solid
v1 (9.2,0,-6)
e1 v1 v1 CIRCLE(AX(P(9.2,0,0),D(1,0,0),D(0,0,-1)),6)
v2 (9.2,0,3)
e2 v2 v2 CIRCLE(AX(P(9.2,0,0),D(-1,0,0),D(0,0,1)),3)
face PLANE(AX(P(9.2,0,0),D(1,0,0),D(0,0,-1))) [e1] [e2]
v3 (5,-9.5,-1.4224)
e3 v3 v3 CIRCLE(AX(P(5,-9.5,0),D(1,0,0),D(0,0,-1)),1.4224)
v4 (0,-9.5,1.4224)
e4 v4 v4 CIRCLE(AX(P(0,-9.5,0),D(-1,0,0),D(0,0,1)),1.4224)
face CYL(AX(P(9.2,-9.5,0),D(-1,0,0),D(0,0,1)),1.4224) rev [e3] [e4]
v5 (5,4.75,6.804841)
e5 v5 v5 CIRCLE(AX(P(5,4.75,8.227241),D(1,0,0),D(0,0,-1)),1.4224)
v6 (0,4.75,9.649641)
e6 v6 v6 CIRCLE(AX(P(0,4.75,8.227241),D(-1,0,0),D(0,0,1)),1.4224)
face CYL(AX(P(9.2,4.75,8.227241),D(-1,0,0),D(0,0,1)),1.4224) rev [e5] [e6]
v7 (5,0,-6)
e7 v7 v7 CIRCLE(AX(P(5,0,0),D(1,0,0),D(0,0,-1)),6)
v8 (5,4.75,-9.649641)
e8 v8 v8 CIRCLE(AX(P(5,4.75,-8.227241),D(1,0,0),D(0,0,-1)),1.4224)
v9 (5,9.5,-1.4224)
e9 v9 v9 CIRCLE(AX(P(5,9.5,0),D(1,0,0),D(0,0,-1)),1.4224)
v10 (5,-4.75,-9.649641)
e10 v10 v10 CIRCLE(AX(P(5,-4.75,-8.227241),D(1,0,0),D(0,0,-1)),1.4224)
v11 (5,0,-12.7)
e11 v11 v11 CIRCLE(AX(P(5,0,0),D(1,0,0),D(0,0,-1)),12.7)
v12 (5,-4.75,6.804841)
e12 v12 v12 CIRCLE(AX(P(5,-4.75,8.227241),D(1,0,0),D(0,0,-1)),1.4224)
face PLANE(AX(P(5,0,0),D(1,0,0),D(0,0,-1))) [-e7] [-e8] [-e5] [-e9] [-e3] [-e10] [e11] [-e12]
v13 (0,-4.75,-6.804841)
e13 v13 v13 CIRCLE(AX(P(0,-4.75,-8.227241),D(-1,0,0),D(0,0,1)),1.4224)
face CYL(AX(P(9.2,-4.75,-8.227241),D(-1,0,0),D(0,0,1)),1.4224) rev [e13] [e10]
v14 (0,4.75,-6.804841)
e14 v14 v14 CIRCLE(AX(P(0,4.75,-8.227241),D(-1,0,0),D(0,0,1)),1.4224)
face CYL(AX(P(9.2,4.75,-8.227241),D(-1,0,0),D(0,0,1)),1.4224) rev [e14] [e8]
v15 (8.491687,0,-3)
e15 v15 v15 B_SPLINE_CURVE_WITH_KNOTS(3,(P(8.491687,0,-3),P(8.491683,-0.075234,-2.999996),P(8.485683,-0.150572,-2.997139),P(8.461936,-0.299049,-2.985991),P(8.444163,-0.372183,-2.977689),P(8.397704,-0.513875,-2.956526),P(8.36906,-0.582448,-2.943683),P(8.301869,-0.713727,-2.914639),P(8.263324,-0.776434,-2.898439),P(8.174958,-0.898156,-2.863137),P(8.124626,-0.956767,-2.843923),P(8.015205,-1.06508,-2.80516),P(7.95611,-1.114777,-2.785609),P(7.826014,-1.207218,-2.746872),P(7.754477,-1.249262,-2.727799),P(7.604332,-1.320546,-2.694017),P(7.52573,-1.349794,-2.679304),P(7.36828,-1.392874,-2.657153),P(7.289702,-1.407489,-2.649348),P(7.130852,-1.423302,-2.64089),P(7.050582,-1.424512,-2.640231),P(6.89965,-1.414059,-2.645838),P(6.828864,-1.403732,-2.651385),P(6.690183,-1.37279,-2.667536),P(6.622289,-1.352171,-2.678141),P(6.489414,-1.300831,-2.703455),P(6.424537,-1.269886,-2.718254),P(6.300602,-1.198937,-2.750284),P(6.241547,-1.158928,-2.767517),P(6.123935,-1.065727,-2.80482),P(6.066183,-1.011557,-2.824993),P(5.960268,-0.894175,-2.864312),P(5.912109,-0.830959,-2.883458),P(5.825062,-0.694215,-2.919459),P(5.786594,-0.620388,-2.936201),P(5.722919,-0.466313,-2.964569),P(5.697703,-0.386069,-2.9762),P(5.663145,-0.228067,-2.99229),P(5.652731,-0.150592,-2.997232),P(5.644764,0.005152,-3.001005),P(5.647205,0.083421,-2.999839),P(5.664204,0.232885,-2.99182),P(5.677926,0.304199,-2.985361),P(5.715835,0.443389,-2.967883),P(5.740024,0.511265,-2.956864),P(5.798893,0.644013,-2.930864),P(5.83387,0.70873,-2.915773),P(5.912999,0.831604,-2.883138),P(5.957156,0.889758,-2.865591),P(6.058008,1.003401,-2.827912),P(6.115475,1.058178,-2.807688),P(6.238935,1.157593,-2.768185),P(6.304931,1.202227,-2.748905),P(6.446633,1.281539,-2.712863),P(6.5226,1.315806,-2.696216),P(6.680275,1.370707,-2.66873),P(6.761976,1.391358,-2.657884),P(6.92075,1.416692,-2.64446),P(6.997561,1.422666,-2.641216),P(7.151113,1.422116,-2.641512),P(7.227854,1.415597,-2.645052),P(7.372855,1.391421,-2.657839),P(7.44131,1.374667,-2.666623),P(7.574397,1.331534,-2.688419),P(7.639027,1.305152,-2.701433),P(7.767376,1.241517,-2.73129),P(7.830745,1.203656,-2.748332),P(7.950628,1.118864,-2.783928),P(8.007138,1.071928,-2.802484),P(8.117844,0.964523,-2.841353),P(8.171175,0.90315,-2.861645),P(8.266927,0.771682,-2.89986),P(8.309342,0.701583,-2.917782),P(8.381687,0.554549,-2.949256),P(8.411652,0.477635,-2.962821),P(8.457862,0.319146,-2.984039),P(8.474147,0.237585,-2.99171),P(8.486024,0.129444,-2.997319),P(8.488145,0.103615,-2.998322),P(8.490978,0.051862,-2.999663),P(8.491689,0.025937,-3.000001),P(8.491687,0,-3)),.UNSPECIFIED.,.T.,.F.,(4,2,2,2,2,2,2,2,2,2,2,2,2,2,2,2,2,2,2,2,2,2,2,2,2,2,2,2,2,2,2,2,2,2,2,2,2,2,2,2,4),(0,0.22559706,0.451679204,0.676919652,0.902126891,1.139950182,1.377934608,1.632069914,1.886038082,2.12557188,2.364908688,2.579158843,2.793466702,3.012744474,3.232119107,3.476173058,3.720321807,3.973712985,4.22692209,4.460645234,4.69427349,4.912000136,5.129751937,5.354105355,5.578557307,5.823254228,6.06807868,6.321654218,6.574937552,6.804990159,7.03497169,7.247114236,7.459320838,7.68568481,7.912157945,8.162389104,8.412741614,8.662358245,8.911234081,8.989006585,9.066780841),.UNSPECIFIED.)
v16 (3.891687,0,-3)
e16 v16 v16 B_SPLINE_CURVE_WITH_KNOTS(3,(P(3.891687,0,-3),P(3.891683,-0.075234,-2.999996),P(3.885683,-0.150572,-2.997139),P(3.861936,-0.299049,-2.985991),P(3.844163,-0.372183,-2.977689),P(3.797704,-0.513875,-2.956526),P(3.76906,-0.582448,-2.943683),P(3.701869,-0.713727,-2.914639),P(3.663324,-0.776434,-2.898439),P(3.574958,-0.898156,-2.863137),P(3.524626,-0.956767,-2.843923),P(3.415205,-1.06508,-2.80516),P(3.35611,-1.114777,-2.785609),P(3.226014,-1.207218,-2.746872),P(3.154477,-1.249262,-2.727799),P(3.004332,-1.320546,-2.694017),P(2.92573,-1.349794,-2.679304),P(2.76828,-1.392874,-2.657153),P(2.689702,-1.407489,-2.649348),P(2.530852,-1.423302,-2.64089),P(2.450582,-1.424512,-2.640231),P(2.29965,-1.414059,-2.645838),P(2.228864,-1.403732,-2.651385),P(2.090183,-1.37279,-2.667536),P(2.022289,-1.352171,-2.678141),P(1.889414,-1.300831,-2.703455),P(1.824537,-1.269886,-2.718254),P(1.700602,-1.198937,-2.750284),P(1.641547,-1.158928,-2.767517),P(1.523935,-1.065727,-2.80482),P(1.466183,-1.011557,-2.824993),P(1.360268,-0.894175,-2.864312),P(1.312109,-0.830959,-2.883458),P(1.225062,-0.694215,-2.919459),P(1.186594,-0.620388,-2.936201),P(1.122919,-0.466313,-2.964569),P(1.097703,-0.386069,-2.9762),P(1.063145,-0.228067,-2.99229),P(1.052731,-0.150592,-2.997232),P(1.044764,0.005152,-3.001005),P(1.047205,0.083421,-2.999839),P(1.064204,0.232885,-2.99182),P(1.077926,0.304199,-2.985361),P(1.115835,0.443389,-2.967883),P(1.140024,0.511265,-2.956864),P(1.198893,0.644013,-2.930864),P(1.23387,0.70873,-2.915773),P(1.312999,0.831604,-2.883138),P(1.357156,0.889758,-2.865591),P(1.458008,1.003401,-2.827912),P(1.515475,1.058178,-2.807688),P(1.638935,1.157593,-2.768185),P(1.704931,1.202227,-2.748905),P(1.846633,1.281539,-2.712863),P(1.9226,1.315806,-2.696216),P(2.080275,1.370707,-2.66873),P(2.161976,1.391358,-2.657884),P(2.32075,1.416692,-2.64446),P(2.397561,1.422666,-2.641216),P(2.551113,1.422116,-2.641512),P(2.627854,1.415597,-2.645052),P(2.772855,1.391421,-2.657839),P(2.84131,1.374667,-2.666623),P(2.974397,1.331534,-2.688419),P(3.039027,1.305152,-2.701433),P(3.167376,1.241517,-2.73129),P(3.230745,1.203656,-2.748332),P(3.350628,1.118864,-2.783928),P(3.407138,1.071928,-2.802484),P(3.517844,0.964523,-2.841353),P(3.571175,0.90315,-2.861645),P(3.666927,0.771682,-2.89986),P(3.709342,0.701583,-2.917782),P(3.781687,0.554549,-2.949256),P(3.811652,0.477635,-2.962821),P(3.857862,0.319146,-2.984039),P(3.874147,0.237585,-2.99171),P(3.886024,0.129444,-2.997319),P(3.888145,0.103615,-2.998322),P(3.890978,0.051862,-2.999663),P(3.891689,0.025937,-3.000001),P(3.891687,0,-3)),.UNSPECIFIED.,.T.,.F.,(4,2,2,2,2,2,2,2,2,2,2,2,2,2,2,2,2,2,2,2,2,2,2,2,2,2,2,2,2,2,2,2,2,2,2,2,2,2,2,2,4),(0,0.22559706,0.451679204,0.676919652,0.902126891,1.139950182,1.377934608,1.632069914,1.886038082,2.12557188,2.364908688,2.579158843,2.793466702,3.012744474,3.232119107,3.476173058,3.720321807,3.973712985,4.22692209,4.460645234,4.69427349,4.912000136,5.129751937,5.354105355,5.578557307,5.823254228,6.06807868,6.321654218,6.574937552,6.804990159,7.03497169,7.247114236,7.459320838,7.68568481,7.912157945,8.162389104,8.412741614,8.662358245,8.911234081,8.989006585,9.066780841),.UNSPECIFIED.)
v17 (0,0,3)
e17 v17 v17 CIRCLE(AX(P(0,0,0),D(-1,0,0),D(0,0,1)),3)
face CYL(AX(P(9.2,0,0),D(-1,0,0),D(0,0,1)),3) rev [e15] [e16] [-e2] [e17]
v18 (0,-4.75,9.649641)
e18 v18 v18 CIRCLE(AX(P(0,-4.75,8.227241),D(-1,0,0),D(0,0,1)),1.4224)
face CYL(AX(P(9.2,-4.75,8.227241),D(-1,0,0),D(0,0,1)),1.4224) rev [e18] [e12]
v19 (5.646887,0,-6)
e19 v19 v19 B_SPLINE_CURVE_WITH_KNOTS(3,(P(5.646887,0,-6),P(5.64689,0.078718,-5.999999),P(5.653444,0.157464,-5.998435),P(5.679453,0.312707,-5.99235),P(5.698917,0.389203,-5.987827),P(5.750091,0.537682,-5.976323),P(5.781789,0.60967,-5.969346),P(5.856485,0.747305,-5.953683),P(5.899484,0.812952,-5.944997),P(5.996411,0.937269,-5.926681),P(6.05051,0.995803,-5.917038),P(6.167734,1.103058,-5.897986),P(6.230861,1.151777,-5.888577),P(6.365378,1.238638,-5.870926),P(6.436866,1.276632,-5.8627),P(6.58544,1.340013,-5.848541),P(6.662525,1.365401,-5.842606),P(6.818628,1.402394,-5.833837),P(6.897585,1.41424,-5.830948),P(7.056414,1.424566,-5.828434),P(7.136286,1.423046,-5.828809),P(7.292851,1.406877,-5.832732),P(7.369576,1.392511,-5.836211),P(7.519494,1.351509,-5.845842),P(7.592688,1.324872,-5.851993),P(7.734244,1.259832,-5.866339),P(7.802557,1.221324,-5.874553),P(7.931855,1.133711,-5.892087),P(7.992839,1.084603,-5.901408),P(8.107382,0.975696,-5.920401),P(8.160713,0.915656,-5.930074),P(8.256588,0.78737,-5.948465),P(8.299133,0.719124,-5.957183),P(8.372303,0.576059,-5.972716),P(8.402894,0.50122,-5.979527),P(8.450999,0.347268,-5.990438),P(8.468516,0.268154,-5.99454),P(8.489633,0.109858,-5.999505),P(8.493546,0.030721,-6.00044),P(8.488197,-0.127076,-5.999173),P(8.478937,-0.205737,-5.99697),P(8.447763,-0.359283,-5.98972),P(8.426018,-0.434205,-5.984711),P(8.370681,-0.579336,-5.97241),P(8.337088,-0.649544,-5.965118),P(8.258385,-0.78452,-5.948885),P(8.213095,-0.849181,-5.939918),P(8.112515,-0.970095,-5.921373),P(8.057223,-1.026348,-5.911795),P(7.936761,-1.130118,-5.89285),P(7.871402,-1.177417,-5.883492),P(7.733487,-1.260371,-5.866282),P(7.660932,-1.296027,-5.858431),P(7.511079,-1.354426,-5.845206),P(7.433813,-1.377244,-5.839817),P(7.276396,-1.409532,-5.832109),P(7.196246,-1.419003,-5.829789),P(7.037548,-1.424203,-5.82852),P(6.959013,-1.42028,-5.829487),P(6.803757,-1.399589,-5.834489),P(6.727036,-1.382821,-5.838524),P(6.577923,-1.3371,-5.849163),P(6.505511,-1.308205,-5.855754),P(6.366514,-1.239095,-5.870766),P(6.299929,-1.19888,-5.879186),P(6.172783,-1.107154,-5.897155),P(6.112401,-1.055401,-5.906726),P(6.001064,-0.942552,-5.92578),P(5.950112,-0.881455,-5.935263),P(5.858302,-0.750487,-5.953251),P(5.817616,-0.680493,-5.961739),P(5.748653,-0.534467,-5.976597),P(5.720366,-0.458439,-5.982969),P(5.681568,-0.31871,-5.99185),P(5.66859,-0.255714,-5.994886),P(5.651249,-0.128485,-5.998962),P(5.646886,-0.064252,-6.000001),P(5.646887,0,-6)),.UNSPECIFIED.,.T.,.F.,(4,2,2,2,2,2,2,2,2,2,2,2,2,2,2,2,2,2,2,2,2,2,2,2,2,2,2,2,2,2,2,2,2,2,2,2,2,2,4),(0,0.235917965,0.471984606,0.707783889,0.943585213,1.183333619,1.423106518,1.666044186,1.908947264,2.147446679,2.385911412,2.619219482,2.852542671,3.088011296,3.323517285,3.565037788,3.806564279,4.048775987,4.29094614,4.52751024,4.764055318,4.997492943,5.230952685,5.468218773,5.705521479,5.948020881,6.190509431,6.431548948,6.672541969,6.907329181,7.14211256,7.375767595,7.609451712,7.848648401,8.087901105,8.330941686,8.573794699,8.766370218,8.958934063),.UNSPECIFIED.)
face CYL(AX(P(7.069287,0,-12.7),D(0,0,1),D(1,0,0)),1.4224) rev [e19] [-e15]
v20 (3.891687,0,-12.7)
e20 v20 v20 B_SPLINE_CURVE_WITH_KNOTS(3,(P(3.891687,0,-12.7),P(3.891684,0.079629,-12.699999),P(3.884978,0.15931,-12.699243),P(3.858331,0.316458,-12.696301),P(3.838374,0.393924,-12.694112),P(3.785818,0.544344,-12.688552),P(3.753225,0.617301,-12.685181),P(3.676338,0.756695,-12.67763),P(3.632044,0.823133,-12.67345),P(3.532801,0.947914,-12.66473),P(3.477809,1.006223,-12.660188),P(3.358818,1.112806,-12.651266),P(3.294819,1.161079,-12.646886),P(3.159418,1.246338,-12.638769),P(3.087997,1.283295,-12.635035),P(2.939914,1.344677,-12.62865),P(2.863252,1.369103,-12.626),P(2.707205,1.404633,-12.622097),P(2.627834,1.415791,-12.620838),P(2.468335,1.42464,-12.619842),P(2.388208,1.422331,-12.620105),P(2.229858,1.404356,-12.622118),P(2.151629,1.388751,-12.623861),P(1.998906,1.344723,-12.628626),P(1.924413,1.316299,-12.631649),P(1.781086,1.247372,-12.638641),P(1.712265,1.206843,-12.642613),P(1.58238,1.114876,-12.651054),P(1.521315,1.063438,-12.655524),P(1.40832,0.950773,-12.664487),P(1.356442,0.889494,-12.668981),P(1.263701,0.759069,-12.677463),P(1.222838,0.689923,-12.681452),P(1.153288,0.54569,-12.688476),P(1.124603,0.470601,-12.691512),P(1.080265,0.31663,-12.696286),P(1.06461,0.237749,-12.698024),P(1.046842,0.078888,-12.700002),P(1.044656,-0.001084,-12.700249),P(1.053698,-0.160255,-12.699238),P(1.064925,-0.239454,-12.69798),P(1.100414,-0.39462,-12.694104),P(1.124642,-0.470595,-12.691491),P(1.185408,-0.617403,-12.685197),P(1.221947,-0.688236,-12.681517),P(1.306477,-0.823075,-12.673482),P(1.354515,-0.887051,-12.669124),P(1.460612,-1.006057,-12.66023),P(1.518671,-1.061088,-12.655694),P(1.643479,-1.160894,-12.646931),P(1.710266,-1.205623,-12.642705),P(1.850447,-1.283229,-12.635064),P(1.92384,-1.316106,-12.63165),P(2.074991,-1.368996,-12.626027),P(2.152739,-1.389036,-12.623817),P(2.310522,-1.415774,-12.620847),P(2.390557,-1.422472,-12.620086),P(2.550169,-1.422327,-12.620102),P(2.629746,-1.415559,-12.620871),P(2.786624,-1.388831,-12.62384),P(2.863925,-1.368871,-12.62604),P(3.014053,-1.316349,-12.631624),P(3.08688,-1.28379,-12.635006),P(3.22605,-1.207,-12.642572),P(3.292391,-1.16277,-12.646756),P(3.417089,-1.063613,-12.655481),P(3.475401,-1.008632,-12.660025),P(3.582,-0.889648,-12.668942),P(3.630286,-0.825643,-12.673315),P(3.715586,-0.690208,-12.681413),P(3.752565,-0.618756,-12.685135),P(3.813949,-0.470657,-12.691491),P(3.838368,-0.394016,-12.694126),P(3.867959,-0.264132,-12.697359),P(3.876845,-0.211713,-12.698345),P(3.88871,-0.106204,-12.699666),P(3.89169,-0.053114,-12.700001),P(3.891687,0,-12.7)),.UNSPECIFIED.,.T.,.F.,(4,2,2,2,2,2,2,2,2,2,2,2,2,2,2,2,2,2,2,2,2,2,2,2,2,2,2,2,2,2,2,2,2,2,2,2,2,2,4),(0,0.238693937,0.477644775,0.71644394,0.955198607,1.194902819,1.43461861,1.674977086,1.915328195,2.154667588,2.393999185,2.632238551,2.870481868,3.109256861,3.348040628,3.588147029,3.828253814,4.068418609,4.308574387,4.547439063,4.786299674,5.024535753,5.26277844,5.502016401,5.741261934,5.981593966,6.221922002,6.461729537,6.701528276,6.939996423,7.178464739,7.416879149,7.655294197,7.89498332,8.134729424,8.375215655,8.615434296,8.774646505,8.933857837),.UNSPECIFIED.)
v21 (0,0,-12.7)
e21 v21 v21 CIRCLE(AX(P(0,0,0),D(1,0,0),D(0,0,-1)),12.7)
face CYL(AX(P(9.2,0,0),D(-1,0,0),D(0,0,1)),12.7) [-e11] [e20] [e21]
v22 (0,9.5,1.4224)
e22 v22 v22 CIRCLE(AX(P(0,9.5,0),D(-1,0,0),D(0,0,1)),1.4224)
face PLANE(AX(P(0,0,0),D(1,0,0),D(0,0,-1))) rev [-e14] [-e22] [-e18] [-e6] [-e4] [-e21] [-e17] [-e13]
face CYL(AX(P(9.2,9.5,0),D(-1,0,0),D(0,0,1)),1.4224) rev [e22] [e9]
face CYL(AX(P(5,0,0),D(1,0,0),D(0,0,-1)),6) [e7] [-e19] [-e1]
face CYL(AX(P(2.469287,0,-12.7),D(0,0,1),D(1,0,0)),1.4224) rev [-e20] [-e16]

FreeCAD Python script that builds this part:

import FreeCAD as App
import Part
import Sketcher
from FreeCAD import Vector
Q = App.Units.Quantity

doc = App.newDocument("Part")
body = doc.addObject("PartDesign::Body", "Body")

# Sketch on YZ plane
sketch1 = doc.addObject("Sketcher::SketchObject", "Sketch")
body.addObject(sketch1)
sketch1.AttachmentSupport = (doc.YZ_Plane, [""])
sketch1.MapMode = "FlatFace"
sketch1.addGeometry(Part.Circle(Vector(0, 0, 0), Vector(0, 0, 1), 12.7), False)
sketch1.addConstraint(Sketcher.Constraint("Coincident", 0, 3, -1, 1))
sketch1.addConstraint(Sketcher.Constraint("Diameter", 0, Q("25.4 mm")))
pad1 = doc.addObject("PartDesign::Pad", "Pad")
body.addObject(pad1)
pad1.Profile = sketch1
pad1.Length = 9.2

# Sketch on YZ plane
sketch2 = doc.addObject("Sketcher::SketchObject", "Sketch001")
body.addObject(sketch2)
sketch2.AttachmentSupport = (doc.YZ_Plane, [""])
sketch2.MapMode = "FlatFace"
sketch2.AttachmentOffset = App.Placement(Vector(0, 0, 5), App.Rotation())
sketch2.addGeometry(Part.Circle(Vector(0, 0, 0), Vector(0, 0, 1), 12.7), False)
sketch2.addGeometry(Part.Circle(Vector(0, 0, 0), Vector(0, 0, 1), 6), False)
sketch2.addConstraint(Sketcher.Constraint("Coincident", 0, 3, -1, 1))
sketch2.addConstraint(Sketcher.Constraint("Coincident", 1, 3, -1, 1))
sketch2.addConstraint(Sketcher.Constraint("Diameter", 1, Q("12 mm")))
sketch2.addConstraint(Sketcher.Constraint("Diameter", 0, Q("25.4 mm")))
pocket1 = doc.addObject("PartDesign::Pocket", "Pocket")
body.addObject(pocket1)
pocket1.Profile = sketch2
pocket1.Length = 4.2
pocket1.Reversed = True

# Sketch on YZ plane
sketch3 = doc.addObject("Sketcher::SketchObject", "Sketch002")
body.addObject(sketch3)
sketch3.AttachmentSupport = (doc.YZ_Plane, [""])
sketch3.MapMode = "FlatFace"
sketch3.addGeometry(Part.Circle(Vector(0, 0, 0), Vector(0, 0, 1), 3), False)
sketch3.addGeometry(Part.Circle(Vector(-4.75, -8.227241, 0), Vector(0, 0, 1), 1.4224), False)
sketch3.addGeometry(Part.Circle(Vector(4.75, 8.227241, 0), Vector(0, 0, 1), 1.4224), False)
sketch3.addGeometry(Part.Circle(Vector(4.75, -8.227241, 0), Vector(0, 0, 1), 1.4224), False)
sketch3.addGeometry(Part.Circle(Vector(9.5, 0, 0), Vector(0, 0, 1), 1.4224), False)
sketch3.addGeometry(Part.Circle(Vector(-9.5, 0, 0), Vector(0, 0, 1), 1.4224), False)
sketch3.addGeometry(Part.Circle(Vector(-4.75, 8.227241, 0), Vector(0, 0, 1), 1.4224), False)
sketch3.addConstraint(Sketcher.Constraint("Coincident", 0, 3, -1, 1))
sketch3.addConstraint(Sketcher.Constraint("Equal", 1, 2))
sketch3.addConstraint(Sketcher.Constraint("Equal", 2, 3))
sketch3.addConstraint(Sketcher.Constraint("Equal", 3, 4))
sketch3.addConstraint(Sketcher.Constraint("Equal", 4, 5))
sketch3.addConstraint(Sketcher.Constraint("Equal", 5, 6))
sketch3.addConstraint(Sketcher.Constraint("Symmetric", 1, 3, 2, 3, -1, 1))
sketch3.addConstraint(Sketcher.Constraint("Symmetric", 4, 3, 5, 3, -1, 1))
sketch3.addConstraint(Sketcher.Constraint("Symmetric", 3, 3, 6, 3, -1, 1))
sketch3.addConstraint(Sketcher.Constraint("Symmetric", 1, 3, 3, 3, -2))
sketch3.addConstraint(Sketcher.Constraint("PointOnObject", 4, 3, -1))
sketch3.addConstraint(Sketcher.Constraint("Diameter", 0, Q("6 mm")))
sketch3.addConstraint(Sketcher.Constraint("DistanceX", 5, 3, 4, 3, Q("19 mm")))
sketch3.addConstraint(Sketcher.Constraint("Diameter", 1, Q("2.8448 mm")))
sketch3.addConstraint(Sketcher.Constraint("DistanceX", 1, 3, 2, 3, Q("9.5 mm")))
sketch3.addConstraint(Sketcher.Constraint("DistanceY", 1, 3, -1, 1, Q("8.227241 mm")))
pocket2 = doc.addObject("PartDesign::Pocket", "Pocket001")
body.addObject(pocket2)
pocket2.Profile = sketch3
pocket2.Type = "ThroughAll"
pocket2.Reversed = True

# Sketch on XY plane
sketch4 = doc.addObject("Sketcher::SketchObject", "Sketch003")
body.addObject(sketch4)
sketch4.AttachmentSupport = (doc.XY_Plane, [""])
sketch4.MapMode = "FlatFace"
sketch4.addGeometry(Part.Circle(Vector(2.469287, 0, 0), Vector(0, 0, 1), 1.4224), False)
sketch4.addGeometry(Part.Circle(Vector(7.069287, 0, 0), Vector(0, 0, 1), 1.4224), False)
sketch4.addConstraint(Sketcher.Constraint("Equal", 0, 1))
sketch4.addConstraint(Sketcher.Constraint("PointOnObject", 0, 3, -1))
sketch4.addConstraint(Sketcher.Constraint("PointOnObject", 1, 3, -1))
sketch4.addConstraint(Sketcher.Constraint("Diameter", 0, Q("2.8448 mm")))
sketch4.addConstraint(Sketcher.Constraint("DistanceX", 0, 3, 1, 3, Q("4.6 mm")))
sketch4.addConstraint(Sketcher.Constraint("DistanceX", -1, 1, 0, 3, Q("2.469287 mm")))
pocket3 = doc.addObject("PartDesign::Pocket", "Pocket002")
body.addObject(pocket3)
pocket3.Profile = sketch4
pocket3.Type = "ThroughAll"

doc.recompute()
